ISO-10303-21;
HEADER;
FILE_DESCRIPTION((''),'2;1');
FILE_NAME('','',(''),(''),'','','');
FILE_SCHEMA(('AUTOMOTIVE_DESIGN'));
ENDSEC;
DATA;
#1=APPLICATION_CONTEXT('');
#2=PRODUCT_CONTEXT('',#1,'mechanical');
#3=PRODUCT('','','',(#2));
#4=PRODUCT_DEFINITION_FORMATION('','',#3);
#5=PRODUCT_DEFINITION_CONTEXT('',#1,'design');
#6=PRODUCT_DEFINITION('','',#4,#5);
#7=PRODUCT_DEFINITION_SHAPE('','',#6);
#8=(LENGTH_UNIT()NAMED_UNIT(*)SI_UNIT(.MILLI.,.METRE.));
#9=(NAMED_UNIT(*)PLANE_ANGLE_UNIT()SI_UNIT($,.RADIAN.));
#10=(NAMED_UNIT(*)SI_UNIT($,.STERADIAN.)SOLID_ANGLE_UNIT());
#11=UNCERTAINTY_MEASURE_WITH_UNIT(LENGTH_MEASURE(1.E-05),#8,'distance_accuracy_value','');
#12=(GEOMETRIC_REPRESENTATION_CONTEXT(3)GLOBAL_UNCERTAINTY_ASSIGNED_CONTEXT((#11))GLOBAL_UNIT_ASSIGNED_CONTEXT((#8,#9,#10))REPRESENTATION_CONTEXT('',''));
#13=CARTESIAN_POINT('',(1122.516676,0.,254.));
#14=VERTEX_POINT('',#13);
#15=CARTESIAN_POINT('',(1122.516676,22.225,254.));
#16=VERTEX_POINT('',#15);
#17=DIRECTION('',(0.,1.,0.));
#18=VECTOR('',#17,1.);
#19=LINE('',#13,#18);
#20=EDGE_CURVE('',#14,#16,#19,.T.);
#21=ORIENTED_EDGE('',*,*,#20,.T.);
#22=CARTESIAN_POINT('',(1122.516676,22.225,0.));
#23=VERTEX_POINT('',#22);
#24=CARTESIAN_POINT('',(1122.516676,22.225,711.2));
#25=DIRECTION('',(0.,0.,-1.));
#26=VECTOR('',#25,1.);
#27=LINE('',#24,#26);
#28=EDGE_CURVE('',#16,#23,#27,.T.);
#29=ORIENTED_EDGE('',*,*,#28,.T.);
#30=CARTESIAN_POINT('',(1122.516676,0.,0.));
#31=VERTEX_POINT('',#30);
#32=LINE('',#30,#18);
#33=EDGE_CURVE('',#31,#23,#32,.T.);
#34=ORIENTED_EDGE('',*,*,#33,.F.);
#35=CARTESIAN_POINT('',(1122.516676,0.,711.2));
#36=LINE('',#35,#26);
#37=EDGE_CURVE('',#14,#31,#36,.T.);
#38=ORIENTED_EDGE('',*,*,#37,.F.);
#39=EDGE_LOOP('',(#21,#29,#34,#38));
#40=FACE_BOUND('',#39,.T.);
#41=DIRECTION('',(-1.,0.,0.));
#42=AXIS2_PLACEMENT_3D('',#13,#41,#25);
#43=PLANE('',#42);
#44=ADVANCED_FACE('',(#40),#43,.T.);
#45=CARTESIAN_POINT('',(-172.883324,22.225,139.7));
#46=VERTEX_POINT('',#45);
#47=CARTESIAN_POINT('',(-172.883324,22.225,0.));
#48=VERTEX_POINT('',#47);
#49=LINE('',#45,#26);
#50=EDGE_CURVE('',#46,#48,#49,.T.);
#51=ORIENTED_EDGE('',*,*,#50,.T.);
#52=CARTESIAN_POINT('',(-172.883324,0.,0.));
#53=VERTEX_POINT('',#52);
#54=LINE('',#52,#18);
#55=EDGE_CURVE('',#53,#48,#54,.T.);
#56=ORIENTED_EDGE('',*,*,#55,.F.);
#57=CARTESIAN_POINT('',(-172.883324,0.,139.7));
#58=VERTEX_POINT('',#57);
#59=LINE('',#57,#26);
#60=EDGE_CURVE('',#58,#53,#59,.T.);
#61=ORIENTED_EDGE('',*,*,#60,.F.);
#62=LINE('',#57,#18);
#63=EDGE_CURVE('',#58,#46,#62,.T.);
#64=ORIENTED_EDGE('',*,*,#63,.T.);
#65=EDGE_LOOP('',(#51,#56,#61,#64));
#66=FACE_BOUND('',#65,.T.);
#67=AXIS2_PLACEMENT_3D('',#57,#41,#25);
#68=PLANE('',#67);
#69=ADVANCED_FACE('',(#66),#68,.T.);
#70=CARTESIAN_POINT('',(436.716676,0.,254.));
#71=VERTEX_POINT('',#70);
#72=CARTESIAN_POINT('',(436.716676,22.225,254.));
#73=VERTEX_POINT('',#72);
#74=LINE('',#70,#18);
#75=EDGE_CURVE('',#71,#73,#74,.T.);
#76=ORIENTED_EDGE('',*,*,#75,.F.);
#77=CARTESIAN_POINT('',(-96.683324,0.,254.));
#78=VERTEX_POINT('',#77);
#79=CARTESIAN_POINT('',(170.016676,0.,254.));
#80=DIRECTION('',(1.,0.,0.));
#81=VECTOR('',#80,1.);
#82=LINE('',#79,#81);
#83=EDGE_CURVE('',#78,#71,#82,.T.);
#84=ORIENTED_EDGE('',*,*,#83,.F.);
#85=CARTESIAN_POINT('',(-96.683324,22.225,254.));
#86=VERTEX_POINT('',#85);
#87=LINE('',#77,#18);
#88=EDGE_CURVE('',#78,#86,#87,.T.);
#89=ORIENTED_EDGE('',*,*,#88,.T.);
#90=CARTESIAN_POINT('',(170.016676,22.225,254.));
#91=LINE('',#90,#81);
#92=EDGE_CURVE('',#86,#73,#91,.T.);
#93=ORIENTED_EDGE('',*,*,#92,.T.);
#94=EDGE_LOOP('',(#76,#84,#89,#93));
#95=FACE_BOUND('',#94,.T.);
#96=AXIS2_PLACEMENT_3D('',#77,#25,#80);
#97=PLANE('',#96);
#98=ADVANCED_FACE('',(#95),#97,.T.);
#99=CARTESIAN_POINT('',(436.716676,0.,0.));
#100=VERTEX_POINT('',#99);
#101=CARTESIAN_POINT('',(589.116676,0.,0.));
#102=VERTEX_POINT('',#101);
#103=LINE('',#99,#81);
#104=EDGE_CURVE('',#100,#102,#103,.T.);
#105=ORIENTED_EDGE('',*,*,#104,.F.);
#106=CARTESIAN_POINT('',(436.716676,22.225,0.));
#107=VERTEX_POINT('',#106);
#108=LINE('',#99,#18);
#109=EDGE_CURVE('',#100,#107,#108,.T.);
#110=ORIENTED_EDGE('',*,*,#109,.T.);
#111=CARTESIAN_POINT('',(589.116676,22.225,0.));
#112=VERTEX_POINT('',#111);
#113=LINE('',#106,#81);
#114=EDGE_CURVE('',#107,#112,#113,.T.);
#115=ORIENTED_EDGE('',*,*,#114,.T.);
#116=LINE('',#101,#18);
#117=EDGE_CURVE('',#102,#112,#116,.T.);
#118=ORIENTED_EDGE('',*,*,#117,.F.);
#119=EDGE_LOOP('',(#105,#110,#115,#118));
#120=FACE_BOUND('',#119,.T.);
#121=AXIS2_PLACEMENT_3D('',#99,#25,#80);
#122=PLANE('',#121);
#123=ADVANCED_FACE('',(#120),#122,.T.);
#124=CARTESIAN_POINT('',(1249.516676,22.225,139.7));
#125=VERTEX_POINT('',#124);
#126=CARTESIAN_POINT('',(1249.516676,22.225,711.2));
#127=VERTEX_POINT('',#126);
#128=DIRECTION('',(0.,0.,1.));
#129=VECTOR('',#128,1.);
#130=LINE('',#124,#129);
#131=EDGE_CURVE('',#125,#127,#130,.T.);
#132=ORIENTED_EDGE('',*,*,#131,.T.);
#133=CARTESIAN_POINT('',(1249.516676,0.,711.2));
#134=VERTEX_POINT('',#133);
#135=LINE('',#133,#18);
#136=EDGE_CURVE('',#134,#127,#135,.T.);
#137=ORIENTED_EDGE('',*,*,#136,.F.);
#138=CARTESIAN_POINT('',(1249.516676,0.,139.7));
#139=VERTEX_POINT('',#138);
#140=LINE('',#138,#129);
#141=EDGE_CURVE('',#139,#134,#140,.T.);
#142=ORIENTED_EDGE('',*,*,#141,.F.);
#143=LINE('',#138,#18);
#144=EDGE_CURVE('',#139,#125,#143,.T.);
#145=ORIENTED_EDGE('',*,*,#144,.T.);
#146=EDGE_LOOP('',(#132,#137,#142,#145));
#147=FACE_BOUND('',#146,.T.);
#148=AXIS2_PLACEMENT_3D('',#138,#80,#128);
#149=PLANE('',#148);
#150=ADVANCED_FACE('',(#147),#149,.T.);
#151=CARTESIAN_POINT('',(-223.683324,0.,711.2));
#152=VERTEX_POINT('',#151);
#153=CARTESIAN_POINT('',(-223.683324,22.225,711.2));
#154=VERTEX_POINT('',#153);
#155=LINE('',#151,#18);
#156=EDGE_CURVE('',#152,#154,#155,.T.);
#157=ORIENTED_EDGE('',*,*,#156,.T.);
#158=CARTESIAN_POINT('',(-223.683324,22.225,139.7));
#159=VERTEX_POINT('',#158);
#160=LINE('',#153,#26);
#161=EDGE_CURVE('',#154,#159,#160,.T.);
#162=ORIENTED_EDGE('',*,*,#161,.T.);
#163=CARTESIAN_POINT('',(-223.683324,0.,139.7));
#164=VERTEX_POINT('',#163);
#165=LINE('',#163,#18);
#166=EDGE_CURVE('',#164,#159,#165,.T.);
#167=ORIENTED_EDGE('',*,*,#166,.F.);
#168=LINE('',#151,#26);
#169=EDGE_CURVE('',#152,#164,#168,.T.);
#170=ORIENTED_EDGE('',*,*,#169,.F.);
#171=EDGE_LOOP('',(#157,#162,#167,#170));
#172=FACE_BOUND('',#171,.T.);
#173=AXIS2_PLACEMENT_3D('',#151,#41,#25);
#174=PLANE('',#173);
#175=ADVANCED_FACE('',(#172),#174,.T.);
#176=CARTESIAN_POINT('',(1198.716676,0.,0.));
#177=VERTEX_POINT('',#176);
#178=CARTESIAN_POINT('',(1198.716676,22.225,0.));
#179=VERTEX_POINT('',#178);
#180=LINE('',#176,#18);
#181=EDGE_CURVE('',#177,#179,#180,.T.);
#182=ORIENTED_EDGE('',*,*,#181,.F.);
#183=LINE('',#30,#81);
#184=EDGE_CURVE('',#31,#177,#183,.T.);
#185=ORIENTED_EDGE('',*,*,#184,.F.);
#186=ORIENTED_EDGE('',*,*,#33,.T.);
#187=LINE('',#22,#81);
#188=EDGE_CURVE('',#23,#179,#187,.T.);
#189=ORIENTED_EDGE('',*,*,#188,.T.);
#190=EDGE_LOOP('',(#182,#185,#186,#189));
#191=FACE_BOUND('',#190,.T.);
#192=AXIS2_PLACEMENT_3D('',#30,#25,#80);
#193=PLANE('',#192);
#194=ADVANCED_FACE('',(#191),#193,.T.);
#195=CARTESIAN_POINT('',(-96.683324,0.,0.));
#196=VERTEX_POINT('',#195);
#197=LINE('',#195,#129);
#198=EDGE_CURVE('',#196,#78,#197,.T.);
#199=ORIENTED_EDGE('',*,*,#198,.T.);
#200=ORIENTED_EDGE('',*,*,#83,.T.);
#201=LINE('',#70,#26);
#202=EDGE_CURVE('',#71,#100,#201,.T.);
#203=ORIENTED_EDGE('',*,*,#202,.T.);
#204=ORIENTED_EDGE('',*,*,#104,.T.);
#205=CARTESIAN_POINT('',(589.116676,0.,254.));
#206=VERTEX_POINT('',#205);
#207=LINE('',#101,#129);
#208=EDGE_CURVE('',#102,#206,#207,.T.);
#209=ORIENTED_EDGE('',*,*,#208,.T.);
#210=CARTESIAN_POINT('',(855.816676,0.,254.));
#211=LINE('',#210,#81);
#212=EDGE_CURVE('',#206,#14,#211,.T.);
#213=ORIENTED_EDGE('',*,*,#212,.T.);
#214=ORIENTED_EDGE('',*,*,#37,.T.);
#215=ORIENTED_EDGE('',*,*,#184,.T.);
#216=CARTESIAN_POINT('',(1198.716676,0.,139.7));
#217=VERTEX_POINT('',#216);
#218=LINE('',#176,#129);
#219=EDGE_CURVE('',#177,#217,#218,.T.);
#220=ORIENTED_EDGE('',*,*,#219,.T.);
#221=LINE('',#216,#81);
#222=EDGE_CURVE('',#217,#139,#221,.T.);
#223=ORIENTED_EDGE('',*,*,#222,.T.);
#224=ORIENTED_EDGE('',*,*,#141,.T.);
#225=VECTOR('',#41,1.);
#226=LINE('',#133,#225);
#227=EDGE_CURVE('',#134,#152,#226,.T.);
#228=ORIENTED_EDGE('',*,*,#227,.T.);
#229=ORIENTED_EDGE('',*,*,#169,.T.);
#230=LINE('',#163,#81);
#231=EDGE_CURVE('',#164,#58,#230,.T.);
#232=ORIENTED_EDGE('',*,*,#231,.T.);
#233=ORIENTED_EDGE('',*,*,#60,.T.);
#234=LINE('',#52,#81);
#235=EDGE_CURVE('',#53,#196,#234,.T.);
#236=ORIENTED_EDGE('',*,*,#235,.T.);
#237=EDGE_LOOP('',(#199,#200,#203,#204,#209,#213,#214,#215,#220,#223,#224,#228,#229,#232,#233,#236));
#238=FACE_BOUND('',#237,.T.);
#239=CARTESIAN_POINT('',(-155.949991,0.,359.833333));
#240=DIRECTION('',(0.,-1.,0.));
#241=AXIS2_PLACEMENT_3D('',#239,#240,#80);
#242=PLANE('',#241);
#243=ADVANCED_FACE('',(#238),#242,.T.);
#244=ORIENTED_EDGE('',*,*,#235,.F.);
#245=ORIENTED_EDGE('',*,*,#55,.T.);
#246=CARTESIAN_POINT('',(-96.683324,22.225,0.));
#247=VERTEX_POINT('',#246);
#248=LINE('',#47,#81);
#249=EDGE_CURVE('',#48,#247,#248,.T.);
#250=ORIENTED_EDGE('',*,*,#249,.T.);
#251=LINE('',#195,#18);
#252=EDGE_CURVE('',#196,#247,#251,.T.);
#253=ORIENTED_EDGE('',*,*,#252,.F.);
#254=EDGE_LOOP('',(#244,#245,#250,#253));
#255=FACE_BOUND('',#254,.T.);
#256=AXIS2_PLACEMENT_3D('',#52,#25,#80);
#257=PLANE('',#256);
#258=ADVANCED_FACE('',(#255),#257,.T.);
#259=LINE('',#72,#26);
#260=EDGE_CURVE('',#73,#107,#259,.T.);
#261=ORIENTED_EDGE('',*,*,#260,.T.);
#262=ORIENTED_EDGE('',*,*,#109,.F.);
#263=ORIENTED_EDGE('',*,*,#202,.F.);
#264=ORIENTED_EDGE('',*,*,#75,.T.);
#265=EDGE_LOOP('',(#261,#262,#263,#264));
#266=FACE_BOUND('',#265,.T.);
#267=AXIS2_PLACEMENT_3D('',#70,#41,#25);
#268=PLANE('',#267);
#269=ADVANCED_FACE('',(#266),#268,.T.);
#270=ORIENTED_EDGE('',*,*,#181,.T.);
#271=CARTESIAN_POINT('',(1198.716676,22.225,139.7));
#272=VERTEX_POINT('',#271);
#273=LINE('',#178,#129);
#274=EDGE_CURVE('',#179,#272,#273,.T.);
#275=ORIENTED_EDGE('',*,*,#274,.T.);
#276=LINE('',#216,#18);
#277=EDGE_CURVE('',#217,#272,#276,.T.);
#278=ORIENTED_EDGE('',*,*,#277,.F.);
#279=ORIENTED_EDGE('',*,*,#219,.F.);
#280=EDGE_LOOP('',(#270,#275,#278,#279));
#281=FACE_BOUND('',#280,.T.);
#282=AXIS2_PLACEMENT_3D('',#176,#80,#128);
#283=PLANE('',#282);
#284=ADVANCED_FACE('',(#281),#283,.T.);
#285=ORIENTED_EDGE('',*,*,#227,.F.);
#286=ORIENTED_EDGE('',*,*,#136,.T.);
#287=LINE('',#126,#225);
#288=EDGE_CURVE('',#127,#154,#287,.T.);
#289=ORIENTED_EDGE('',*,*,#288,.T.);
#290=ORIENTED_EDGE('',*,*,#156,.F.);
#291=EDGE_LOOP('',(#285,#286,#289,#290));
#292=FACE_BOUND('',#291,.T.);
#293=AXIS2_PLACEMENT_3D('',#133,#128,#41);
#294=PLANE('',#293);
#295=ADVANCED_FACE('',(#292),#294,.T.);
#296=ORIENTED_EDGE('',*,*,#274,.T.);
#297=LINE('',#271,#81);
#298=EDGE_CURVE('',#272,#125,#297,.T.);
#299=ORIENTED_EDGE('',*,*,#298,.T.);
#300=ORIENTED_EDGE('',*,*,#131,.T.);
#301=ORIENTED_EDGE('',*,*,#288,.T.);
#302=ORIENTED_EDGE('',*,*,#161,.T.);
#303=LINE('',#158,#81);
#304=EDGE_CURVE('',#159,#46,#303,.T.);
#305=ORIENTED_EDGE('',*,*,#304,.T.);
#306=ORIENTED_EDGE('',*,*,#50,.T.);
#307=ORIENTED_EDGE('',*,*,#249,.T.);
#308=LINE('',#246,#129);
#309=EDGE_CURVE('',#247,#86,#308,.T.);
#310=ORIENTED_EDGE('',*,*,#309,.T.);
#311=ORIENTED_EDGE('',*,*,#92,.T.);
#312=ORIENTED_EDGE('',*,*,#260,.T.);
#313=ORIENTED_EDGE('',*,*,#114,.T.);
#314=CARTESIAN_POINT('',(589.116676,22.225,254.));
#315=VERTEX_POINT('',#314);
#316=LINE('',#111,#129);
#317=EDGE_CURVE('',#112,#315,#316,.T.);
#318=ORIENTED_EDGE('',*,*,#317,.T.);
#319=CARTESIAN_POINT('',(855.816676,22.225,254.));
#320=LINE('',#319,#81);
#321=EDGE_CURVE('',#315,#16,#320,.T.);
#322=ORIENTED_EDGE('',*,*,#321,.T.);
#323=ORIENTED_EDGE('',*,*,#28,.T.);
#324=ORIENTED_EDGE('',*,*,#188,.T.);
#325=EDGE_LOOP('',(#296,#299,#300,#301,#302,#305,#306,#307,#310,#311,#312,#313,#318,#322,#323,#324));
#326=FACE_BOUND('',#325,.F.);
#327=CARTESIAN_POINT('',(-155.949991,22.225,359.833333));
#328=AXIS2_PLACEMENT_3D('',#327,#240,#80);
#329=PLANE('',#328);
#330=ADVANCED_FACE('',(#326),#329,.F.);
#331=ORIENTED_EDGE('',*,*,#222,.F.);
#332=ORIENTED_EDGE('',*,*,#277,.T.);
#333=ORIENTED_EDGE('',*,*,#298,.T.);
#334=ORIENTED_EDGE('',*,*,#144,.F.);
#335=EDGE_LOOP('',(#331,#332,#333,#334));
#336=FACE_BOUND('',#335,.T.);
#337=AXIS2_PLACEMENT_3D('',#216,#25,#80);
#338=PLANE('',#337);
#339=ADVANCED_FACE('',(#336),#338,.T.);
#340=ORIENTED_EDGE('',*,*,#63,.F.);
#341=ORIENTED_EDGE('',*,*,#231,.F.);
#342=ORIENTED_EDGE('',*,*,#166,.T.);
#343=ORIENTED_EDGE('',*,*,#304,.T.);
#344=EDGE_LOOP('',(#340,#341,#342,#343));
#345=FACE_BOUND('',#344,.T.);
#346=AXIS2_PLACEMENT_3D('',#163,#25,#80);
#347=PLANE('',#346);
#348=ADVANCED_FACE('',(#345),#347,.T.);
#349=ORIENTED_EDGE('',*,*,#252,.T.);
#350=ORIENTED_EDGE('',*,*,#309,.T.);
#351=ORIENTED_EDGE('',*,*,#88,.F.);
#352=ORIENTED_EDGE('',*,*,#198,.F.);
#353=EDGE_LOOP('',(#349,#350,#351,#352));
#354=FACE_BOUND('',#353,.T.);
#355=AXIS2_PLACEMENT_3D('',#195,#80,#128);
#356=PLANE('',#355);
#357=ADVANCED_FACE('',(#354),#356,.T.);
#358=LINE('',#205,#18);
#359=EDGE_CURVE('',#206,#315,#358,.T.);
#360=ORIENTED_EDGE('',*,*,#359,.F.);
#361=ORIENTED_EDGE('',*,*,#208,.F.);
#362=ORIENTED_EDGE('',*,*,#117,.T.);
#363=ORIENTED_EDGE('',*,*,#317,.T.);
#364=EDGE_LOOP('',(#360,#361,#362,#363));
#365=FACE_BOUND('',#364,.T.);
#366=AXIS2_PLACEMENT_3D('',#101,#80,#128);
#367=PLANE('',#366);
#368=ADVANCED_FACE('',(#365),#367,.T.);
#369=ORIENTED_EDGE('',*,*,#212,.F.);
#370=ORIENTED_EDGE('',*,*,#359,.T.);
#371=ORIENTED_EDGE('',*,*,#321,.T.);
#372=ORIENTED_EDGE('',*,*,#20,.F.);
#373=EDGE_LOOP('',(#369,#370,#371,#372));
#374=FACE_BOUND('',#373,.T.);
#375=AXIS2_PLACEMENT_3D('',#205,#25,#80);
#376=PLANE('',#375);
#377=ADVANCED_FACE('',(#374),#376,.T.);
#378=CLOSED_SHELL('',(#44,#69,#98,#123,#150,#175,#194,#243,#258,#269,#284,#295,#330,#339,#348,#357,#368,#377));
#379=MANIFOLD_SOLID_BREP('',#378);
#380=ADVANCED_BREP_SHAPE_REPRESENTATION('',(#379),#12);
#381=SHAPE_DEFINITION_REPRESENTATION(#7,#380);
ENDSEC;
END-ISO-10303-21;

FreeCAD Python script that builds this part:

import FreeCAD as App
import Part
import Sketcher

V = App.Vector
Q = App.Units.Quantity


def add_polygon(sketch, points):
    """Adds a closed chain of lines whose ends are joined by coincident constraints."""
    first, n = sketch.GeometryCount, len(points)
    for a, b in zip(points, points[1:] + points[:1]):
        sketch.addGeometry(Part.LineSegment(App.Vector(*a, 0), App.Vector(*b, 0)), False)
    for i in range(n):
        sketch.addConstraint(Sketcher.Constraint("Coincident", first + i, 2, first + (i + 1) % n, 1))

doc = App.newDocument("Part")
body = doc.addObject("PartDesign::Body", "Body")

sketch1 = body.newObject("Sketcher::SketchObject", "Sketch")
sketch1.AttachmentSupport = (doc.getObject("XZ_Plane"), [""])
sketch1.MapMode = "FlatFace"
add_polygon(sketch1, [(-224, 711), (-224, 140), (-173, 140), (-173, 0), (-97, 0), (-97, 254), (437, 254), (437, 0), (589, 0), (589, 254), (1123, 254), (1123, 0), (1199, 0), (1199, 140), (1250, 140), (1250, 711)])
sketch1.addConstraint(Sketcher.Constraint("Vertical", 0))
sketch1.addConstraint(Sketcher.Constraint("Horizontal", 1))
sketch1.addConstraint(Sketcher.Constraint("Vertical", 2))
sketch1.addConstraint(Sketcher.Constraint("Horizontal", 3))
sketch1.addConstraint(Sketcher.Constraint("Vertical", 4))
sketch1.addConstraint(Sketcher.Constraint("Horizontal", 5))
sketch1.addConstraint(Sketcher.Constraint("Vertical", 6))
sketch1.addConstraint(Sketcher.Constraint("Horizontal", 7))
sketch1.addConstraint(Sketcher.Constraint("Vertical", 8))
sketch1.addConstraint(Sketcher.Constraint("Horizontal", 9))
sketch1.addConstraint(Sketcher.Constraint("Vertical", 10))
sketch1.addConstraint(Sketcher.Constraint("Horizontal", 11))
sketch1.addConstraint(Sketcher.Constraint("Vertical", 12))
sketch1.addConstraint(Sketcher.Constraint("Horizontal", 13))
sketch1.addConstraint(Sketcher.Constraint("Vertical", 14))
sketch1.addConstraint(Sketcher.Constraint("Horizontal", 15))
sketch1.addConstraint(Sketcher.Constraint("PointOnObject", 2, 2, -1))
sketch1.addConstraint(Sketcher.Constraint("PointOnObject", 6, 2, -1))
sketch1.addConstraint(Sketcher.Constraint("PointOnObject", 10, 2, -1))
sketch1.addConstraint(Sketcher.Constraint("Horizontal", 5, 2, 8, 2))
sketch1.addConstraint(Sketcher.Constraint("Horizontal", 1, 2, 12, 2))
sketch1.addConstraint(Sketcher.Constraint("Equal", 5, 9))
sketch1.addConstraint(Sketcher.Constraint("Equal", 3, 11))
sketch1.addConstraint(Sketcher.Constraint("Equal", 1, 13))
sketch1.addConstraint(Sketcher.Constraint("DistanceX", 1, 1, 1, 2, Q("2 in")))
sketch1.addConstraint(Sketcher.Constraint("DistanceX", 3, 1, 3, 2, Q("3 in")))
sketch1.addConstraint(Sketcher.Constraint("DistanceX", 5, 1, 5, 2, Q("21 in")))
sketch1.addConstraint(Sketcher.Constraint("DistanceX", 7, 1, 7, 2, Q("6 in")))
sketch1.addConstraint(Sketcher.Constraint("DistanceY", 4, 1, 4, 2, Q("10 in")))
sketch1.addConstraint(Sketcher.Constraint("DistanceY", 0, 2, 0, 1, Q("22.5 in")))
sketch1.addConstraint(Sketcher.Constraint("DistanceY", 2, 2, 2, 1, Q("5.5 in")))
sketch1.addConstraint(Sketcher.Constraint("DistanceX", 0, 2, -1, 1, Q("223.683324 mm")))
pad1 = body.newObject("PartDesign::Pad", "Pad")
pad1.Profile = sketch1
pad1.Length = Q("0.875 in")
pad1.Reversed = True

sketch2 = body.newObject("Sketcher::SketchObject", "Sketch001")
sketch2.AttachmentSupport = (doc.getObject("XZ_Plane"), [""])
sketch2.MapMode = "FlatFace"
add_polygon(sketch2, [(-224, 711), (-224, 0), (-97, 0), (-97, 254), (437, 254), (437, 0), (589, 0), (589, 254), (1123, 254), (1123, 0), (1250, 0), (1250, 711)])
sketch2.addConstraint(Sketcher.Constraint("Vertical", 0))
sketch2.addConstraint(Sketcher.Constraint("Horizontal", 1))
sketch2.addConstraint(Sketcher.Constraint("Vertical", 2))
sketch2.addConstraint(Sketcher.Constraint("Horizontal", 3))
sketch2.addConstraint(Sketcher.Constraint("Vertical", 4))
sketch2.addConstraint(Sketcher.Constraint("Horizontal", 5))
sketch2.addConstraint(Sketcher.Constraint("Vertical", 6))
sketch2.addConstraint(Sketcher.Constraint("Horizontal", 7))
sketch2.addConstraint(Sketcher.Constraint("Vertical", 8))
sketch2.addConstraint(Sketcher.Constraint("Horizontal", 9))
sketch2.addConstraint(Sketcher.Constraint("Vertical", 10))
sketch2.addConstraint(Sketcher.Constraint("Horizontal", 11))
sketch2.addConstraint(Sketcher.Constraint("PointOnObject", 0, 2, -1))
sketch2.addConstraint(Sketcher.Constraint("PointOnObject", 4, 2, -1))
sketch2.addConstraint(Sketcher.Constraint("PointOnObject", 8, 2, -1))
sketch2.addConstraint(Sketcher.Constraint("Horizontal", 3, 2, 6, 2))
sketch2.addConstraint(Sketcher.Constraint("Equal", 3, 7))
sketch2.addConstraint(Sketcher.Constraint("Equal", 1, 9))
sketch2.addConstraint(Sketcher.Constraint("DistanceX", 1, 1, 1, 2, Q("5 in")))
sketch2.addConstraint(Sketcher.Constraint("DistanceX", 3, 1, 3, 2, Q("21 in")))
sketch2.addConstraint(Sketcher.Constraint("DistanceX", 5, 1, 5, 2, Q("6 in")))
sketch2.addConstraint(Sketcher.Constraint("DistanceY", 0, 2, 0, 1, Q("28 in")))
sketch2.addConstraint(Sketcher.Constraint("DistanceY", 2, 1, 2, 2, Q("10 in")))
sketch2.addConstraint(Sketcher.Constraint("DistanceX", 0, 2, -1, 1, Q("223.683324 mm")))
pocket1 = body.newObject("PartDesign::Pocket", "Pocket")
pocket1.Profile = sketch2
pocket1.Length = Q("0.875 in")
pocket1.Reversed = True

doc.recompute()
